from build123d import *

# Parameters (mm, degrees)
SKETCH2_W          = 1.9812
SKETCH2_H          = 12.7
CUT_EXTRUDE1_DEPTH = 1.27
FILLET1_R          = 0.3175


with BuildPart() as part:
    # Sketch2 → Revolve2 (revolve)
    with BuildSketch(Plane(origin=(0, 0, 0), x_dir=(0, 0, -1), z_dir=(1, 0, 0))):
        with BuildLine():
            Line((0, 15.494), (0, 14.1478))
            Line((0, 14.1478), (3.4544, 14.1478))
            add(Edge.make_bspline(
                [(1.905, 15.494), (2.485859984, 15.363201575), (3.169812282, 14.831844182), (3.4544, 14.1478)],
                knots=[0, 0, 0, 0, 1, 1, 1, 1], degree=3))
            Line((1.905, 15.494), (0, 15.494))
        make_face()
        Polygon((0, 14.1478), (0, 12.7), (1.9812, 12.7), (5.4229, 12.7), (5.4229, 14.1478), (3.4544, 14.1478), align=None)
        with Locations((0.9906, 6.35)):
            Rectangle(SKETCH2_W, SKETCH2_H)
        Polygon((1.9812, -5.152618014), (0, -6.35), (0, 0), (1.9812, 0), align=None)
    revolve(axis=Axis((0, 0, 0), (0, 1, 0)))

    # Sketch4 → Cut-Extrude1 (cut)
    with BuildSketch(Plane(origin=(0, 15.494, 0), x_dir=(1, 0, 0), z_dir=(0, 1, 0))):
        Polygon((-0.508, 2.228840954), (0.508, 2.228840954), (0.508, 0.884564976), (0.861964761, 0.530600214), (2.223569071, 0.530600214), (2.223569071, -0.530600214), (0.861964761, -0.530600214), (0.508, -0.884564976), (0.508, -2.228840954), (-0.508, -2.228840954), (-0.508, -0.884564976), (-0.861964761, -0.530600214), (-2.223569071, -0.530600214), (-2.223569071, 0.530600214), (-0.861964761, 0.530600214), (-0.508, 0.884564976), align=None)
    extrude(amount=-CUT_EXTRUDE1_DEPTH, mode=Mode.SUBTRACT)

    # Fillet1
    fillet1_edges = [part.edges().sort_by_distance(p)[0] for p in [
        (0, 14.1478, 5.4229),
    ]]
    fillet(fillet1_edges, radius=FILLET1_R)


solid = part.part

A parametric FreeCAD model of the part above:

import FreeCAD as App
import Part
import Sketcher
from FreeCAD import Vector
Q = App.Units.Quantity


def edges_at(feature, points):
    """Names of the edges that pass closest to the given points."""
    edges = feature.Shape.Edges
    near = lambda p: min(range(len(edges)), key=lambda i: edges[i].distToShape(Part.Vertex(*p))[0])
    return sorted({f"Edge{near(p) + 1}" for p in points})


def add_polygon(sketch, points):
    """Adds a closed chain of lines whose ends are joined by coincident constraints."""
    first, n = sketch.GeometryCount, len(points)
    for a, b in zip(points, points[1:] + points[:1]):
        sketch.addGeometry(Part.LineSegment(App.Vector(*a, 0), App.Vector(*b, 0)), False)
    for i in range(n):
        sketch.addConstraint(Sketcher.Constraint("Coincident", first + i, 2, first + (i + 1) % n, 1))

doc = App.newDocument("Part")
params = doc.addObject("Spreadsheet::Sheet", "Params")
for row, (alias, value) in enumerate([
    ("sketch1_width", "0.86 in"),
    ("revolution_angle", "360 deg"),
    ("sketch2_width", "0.04 in"),
    ("pocket1_length", "0.05 in"),
    ("fillet_radius", "0.0125 in"),
], start=1):
    params.set(f"A{row}", alias)
    params.set(f"B{row}", "=" + value)
    params.setAlias(f"B{row}", alias)

body = doc.addObject("PartDesign::Body", "Body")

sketch1 = body.newObject("Sketcher::SketchObject", "Sketch")
sketch1.AttachmentSupport = (doc.getObject("YZ_Plane"), [""])
sketch1.MapMode = "FlatFace"
sketch1.addGeometry([
    Part.LineSegment(Vector(15.494, 0, 0), Vector(-6.35, 0, 0)),
    Part.LineSegment(Vector(-6.35, 0, 0), Vector(-5.152618, -1.9812, 0)),
    Part.LineSegment(Vector(-5.152618, -1.9812, 0), Vector(12.7, -1.9812, 0)),
    Part.LineSegment(Vector(12.7, -1.9812, 0), Vector(12.7, -5.4229, 0)),
    Part.LineSegment(Vector(12.7, -5.4229, 0), Vector(14.1478, -5.4229, 0)),
    Part.LineSegment(Vector(14.1478, -5.4229, 0), Vector(14.1478, -3.4544, 0)),
    Part.BSplineCurve([Vector(15.494, -1.905, 0), Vector(15.363202, -2.48586, 0), Vector(14.831844, -3.169812, 0), Vector(14.1478, -3.4544, 0)], [4, 4], [0, 1], False, 3, [1, 1, 1, 1], False),
    Part.LineSegment(Vector(15.494, -1.905, 0), Vector(15.494, 0, 0)),
], False)
sketch1.addConstraint([
    Sketcher.Constraint("Block", 6),
    Sketcher.Constraint("Coincident", 0, 2, 1, 1),
    Sketcher.Constraint("Coincident", 1, 2, 2, 1),
    Sketcher.Constraint("Coincident", 2, 2, 3, 1),
    Sketcher.Constraint("Coincident", 3, 2, 4, 1),
    Sketcher.Constraint("Coincident", 4, 2, 5, 1),
    Sketcher.Constraint("Coincident", 5, 2, 6, 2),
    Sketcher.Constraint("Coincident", 6, 1, 7, 1),
    Sketcher.Constraint("Coincident", 7, 2, 0, 1),
    Sketcher.Constraint("Horizontal", 0),
    Sketcher.Constraint("Horizontal", 2),
    Sketcher.Constraint("Vertical", 3),
    Sketcher.Constraint("Horizontal", 4),
    Sketcher.Constraint("Vertical", 5),
    Sketcher.Constraint("Vertical", 7),
    Sketcher.Constraint("PointOnObject", 0, 2, -1),
    Sketcher.Constraint("DistanceX", 0, 2, 0, 1, Q("0.86 in")),
    Sketcher.Constraint("DistanceX", -1, 1, 2, 2, Q("0.5 in")),
    Sketcher.Constraint("DistanceY", 3, 2, 3, 1, Q("0.1355 in")),
    Sketcher.Constraint("DistanceY", 5, 1, 5, 2, Q("0.0775 in")),
    Sketcher.Constraint("DistanceX", 2, 1, 2, 2, 17.852618),
])
sketch1.setExpression("Constraints[16]", "Params.sketch1_width")
revolution = body.newObject("PartDesign::Revolution", "Revolution")
revolution.Profile = sketch1
revolution.ReferenceAxis = (sketch1, ["H_Axis"])
revolution.setExpression("Angle", "Params.revolution_angle")

sketch2 = body.newObject("Sketcher::SketchObject", "Sketch001")
sketch2.AttachmentSupport = (doc.getObject("XZ_Plane"), [""])
sketch2.MapMode = "FlatFace"
sketch2.AttachmentOffset = App.Placement(Vector(0, 0, -0.61 * 25.4), App.Rotation())
add_polygon(sketch2, [(0.508, -2.228841), (-0.508, -2.228841), (-0.508, -0.884565), (-0.861965, -0.5306), (-2.223569, -0.5306), (-2.223569, 0.5306), (-0.861965, 0.5306), (-0.508, 0.884565), (-0.508, 2.228841), (0.508, 2.228841), (0.508, 0.884565), (0.861965, 0.5306), (2.223569, 0.5306), (2.223569, -0.5306), (0.861965, -0.5306), (0.508, -0.884565)])
sketch2.addConstraint([
    Sketcher.Constraint("Horizontal", 0),
    Sketcher.Constraint("Vertical", 1),
    Sketcher.Constraint("Horizontal", 3),
    Sketcher.Constraint("Vertical", 4),
    Sketcher.Constraint("Horizontal", 5),
    Sketcher.Constraint("Vertical", 7),
    Sketcher.Constraint("Horizontal", 8),
    Sketcher.Constraint("Vertical", 9),
    Sketcher.Constraint("Horizontal", 11),
    Sketcher.Constraint("Vertical", 12),
    Sketcher.Constraint("Horizontal", 13),
    Sketcher.Constraint("Vertical", 15),
    Sketcher.Constraint("Symmetric", 0, 2, 8, 2, -1, 1),
    Sketcher.Constraint("Symmetric", 2, 2, 10, 2, -1, 1),
    Sketcher.Constraint("Symmetric", 4, 2, 12, 2, -1, 1),
    Sketcher.Constraint("Symmetric", 6, 2, 14, 2, -1, 1),
    Sketcher.Constraint("Symmetric", 6, 2, 9, 2, -2),
    Sketcher.Constraint("Symmetric", 5, 2, 10, 2, -2),
    Sketcher.Constraint("Perpendicular", 2, 6),
    Sketcher.Constraint("Perpendicular", 6, 10),
    Sketcher.Constraint("Perpendicular", 10, 14),
    Sketcher.Constraint("DistanceX", 0, 2, 0, 1, Q("0.04 in")),
    Sketcher.Constraint("DistanceY", 4, 1, 4, 2, 1.0612),
    Sketcher.Constraint("Distance", 2, 0.500582),
    Sketcher.Constraint("DistanceX", 3, 2, 3, 1, 1.361604),
    Sketcher.Constraint("DistanceY", 1, 1, 1, 2, 1.344276),
])
sketch2.setExpression("Constraints[37]", "Params.sketch2_width")
pocket1 = body.newObject("PartDesign::Pocket", "Pocket")
pocket1.Profile = sketch2
pocket1.setExpression("Length", "Params.pocket1_length")
pocket1.Reversed = True
doc.recompute()

fillet = body.newObject("PartDesign::Fillet", "Fillet")
fillet.Base = (pocket1, edges_at(pocket1, [(0, 14.148, 5.423)]))
fillet.setExpression("Radius", "Params.fillet_radius")

doc.recompute()
